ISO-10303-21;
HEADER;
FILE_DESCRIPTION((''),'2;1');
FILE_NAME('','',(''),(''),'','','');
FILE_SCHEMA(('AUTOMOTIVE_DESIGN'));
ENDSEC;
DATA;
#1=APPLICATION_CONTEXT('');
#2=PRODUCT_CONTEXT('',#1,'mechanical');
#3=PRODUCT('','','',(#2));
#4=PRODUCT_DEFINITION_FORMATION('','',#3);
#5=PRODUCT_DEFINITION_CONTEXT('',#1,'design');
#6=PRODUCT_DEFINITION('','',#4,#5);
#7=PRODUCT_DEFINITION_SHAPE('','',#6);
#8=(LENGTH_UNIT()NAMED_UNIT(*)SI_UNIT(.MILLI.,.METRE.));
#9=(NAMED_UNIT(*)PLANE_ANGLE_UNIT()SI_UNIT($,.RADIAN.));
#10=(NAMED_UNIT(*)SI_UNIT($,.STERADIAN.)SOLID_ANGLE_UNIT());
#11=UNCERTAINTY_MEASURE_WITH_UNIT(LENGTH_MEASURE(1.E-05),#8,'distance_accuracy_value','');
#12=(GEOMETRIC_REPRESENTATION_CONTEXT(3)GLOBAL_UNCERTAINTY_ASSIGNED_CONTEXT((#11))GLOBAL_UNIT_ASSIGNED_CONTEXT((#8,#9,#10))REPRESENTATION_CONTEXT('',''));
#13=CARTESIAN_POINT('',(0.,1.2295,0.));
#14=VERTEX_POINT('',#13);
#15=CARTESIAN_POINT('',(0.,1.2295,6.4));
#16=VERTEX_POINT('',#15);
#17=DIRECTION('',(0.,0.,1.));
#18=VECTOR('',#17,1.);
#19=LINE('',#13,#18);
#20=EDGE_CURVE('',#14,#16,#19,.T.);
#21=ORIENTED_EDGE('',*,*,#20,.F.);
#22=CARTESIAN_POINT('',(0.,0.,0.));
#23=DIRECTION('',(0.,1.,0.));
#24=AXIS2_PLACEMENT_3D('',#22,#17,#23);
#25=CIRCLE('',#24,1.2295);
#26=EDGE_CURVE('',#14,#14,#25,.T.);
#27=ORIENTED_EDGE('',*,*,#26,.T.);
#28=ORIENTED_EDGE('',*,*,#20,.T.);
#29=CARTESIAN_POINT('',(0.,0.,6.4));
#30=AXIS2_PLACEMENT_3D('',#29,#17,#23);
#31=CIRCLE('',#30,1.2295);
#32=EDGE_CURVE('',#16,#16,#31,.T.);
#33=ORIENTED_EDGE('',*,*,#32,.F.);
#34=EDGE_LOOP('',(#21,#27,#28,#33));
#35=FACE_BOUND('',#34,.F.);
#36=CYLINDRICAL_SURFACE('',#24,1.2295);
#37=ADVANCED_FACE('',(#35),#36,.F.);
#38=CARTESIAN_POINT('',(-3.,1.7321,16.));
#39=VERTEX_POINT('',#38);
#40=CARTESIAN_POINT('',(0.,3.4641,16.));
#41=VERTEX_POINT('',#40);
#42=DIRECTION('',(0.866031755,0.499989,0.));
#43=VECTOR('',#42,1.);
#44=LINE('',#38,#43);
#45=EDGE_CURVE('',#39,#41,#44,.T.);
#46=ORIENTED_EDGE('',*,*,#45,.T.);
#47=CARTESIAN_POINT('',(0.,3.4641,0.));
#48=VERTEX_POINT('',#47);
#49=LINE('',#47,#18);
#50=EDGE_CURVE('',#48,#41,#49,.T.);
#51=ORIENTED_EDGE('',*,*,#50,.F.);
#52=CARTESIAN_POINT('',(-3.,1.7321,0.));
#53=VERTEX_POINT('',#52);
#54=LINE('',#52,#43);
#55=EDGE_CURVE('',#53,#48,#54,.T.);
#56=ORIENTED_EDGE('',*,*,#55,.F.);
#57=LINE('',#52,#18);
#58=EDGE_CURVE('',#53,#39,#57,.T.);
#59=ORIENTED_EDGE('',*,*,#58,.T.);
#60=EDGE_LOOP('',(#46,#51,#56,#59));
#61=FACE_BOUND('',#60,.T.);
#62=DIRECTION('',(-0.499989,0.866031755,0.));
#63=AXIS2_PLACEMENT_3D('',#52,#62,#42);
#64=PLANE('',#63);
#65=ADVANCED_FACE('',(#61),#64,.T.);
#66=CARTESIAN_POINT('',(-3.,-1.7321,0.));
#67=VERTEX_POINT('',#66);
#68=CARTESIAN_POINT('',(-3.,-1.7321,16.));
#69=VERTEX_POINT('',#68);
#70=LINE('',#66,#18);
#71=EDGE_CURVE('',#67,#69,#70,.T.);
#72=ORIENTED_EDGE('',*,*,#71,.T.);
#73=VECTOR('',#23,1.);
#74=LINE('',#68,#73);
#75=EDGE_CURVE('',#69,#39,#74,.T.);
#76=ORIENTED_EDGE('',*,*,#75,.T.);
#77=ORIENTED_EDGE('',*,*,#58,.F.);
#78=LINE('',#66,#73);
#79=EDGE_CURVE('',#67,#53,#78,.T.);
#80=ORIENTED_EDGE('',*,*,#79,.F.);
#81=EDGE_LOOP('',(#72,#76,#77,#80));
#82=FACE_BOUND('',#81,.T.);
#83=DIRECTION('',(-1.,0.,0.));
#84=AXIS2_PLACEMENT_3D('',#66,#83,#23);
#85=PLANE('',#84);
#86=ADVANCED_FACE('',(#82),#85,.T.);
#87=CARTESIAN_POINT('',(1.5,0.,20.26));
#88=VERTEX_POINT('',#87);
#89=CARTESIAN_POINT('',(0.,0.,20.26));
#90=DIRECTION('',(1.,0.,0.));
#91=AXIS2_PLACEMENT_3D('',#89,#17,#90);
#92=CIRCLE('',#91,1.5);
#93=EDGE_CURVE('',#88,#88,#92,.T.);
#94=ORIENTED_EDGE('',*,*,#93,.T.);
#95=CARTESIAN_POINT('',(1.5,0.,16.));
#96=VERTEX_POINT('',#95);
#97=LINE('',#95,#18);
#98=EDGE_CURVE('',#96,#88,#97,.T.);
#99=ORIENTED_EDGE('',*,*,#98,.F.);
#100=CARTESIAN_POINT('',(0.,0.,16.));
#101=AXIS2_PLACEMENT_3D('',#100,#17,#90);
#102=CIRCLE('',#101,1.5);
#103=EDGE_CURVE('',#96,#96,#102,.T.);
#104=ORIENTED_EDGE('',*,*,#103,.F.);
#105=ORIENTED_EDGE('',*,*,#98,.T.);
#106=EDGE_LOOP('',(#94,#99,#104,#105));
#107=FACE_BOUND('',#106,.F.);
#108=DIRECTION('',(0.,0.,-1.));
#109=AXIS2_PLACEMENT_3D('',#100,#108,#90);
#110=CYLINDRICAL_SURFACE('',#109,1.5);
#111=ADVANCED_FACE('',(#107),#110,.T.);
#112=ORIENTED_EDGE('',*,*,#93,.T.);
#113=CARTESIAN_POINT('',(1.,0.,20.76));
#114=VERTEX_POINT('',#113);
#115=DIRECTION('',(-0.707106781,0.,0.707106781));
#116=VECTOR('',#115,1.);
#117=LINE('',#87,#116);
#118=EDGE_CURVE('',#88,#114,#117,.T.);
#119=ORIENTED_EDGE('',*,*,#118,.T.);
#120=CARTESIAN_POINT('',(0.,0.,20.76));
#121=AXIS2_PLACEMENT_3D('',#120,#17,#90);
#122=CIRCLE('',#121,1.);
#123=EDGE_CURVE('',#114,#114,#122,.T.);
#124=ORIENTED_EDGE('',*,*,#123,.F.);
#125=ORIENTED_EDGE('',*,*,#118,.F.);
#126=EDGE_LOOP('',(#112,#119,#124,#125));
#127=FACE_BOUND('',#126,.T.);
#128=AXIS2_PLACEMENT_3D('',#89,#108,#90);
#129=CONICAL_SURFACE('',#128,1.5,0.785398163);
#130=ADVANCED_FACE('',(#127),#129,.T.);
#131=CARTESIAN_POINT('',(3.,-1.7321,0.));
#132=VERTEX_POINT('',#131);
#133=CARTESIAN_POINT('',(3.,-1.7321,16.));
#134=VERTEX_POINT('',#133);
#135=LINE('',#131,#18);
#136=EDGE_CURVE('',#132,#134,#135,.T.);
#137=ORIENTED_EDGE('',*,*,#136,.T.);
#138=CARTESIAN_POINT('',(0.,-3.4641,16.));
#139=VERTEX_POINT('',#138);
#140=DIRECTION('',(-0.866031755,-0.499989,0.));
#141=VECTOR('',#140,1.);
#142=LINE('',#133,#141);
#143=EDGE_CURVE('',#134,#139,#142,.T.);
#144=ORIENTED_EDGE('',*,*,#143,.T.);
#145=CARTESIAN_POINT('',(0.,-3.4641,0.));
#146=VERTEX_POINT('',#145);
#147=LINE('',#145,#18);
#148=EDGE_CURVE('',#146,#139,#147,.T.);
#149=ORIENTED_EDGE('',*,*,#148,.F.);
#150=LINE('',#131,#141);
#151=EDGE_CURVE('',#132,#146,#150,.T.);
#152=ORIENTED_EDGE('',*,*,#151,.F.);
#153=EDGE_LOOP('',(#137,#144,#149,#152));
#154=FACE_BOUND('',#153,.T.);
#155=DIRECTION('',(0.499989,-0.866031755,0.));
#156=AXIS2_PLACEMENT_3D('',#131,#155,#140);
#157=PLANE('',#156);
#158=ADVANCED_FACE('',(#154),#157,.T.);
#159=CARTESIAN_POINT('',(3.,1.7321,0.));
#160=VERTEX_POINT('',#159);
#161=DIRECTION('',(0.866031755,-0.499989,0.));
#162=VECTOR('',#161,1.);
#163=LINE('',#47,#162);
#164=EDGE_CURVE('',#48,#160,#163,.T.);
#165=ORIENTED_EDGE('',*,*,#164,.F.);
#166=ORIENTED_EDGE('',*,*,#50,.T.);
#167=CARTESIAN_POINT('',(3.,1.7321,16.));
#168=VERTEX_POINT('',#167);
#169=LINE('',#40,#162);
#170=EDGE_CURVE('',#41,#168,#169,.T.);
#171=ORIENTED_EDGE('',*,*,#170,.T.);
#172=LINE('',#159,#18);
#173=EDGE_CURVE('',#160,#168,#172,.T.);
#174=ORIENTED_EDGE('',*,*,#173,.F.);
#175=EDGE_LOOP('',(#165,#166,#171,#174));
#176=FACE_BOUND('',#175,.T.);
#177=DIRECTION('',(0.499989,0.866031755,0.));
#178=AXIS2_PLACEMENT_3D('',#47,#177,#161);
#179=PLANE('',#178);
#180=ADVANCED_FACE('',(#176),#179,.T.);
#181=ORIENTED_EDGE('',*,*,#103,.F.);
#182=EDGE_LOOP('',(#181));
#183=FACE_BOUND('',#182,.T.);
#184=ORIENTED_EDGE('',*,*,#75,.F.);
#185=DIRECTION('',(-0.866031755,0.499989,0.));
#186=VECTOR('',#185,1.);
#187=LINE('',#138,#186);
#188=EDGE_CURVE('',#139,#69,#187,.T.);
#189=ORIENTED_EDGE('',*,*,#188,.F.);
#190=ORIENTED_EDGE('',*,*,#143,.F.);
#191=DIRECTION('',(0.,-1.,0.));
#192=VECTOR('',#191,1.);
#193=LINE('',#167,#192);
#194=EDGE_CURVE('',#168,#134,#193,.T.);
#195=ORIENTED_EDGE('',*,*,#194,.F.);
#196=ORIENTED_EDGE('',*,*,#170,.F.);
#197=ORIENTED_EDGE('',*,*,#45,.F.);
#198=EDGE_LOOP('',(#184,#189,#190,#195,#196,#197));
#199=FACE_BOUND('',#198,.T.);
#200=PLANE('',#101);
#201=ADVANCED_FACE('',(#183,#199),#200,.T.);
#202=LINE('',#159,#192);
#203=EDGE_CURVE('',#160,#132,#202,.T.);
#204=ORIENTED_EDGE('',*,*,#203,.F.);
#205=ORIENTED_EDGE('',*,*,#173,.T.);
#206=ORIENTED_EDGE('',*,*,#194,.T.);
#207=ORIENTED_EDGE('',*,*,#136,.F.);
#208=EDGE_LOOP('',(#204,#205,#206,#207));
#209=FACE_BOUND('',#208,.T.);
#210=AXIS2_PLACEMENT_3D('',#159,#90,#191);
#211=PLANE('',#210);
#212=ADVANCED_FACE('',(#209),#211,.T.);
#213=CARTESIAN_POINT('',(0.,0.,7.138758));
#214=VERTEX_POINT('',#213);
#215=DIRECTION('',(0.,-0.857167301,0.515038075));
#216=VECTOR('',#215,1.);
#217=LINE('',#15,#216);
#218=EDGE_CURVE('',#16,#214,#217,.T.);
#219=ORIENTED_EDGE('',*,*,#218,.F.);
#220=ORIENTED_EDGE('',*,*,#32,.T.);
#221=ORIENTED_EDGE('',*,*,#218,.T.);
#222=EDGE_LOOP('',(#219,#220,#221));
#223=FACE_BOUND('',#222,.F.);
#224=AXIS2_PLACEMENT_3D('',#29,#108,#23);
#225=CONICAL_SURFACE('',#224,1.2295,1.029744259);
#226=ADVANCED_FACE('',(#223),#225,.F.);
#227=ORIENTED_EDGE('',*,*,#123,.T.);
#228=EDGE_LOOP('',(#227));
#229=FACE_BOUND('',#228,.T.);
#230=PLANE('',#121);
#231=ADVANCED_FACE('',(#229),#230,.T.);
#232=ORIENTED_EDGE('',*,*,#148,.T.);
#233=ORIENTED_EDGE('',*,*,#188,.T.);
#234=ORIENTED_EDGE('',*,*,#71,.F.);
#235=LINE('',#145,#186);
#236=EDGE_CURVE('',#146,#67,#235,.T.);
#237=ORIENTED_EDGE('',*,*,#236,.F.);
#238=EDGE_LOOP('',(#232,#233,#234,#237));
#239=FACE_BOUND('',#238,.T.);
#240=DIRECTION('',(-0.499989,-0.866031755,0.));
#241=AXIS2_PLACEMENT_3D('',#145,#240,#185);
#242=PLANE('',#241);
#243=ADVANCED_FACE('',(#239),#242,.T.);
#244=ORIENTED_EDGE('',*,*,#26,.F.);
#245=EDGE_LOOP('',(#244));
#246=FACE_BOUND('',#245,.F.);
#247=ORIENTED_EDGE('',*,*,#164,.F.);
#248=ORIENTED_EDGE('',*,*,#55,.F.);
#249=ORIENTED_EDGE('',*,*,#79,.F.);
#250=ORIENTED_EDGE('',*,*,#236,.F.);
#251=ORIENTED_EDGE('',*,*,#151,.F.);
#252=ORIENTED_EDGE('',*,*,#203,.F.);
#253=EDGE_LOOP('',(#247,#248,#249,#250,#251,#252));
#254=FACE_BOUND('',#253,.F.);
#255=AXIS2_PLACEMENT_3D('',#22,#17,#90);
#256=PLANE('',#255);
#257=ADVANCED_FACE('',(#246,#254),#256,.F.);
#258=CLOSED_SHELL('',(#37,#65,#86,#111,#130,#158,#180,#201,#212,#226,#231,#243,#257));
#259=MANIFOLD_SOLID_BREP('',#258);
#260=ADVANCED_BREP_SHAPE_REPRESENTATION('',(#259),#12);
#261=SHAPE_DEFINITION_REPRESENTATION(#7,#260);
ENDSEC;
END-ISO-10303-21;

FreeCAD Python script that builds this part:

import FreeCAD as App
import Part
import Sketcher

V = App.Vector
Q = App.Units.Quantity


def edges_at(feature, points):
    """Names of the edges that pass closest to the given points."""
    edges = feature.Shape.Edges
    near = lambda p: min(range(len(edges)), key=lambda i: edges[i].distToShape(Part.Vertex(*p))[0])
    return sorted({f"Edge{near(p) + 1}" for p in points})


def add_polygon(sketch, points):
    """Adds a closed chain of lines whose ends are joined by coincident constraints."""
    first, n = sketch.GeometryCount, len(points)
    for a, b in zip(points, points[1:] + points[:1]):
        sketch.addGeometry(Part.LineSegment(App.Vector(*a, 0), App.Vector(*b, 0)), False)
    for i in range(n):
        sketch.addConstraint(Sketcher.Constraint("Coincident", first + i, 2, first + (i + 1) % n, 1))

doc = App.newDocument("Part")
params = doc.addObject("Spreadsheet::Sheet", "Params")
for row, (alias, value) in enumerate([
    ("pad1_length", "16 mm"),
    ("sketch2_diameter", "3 mm"),
    ("pad2_length", "4.76 mm"),
    ("hole_diameter", "2.459 mm"),
    ("hole_depth", "6.4 mm"),
    ("chamfer_size", "0.5 mm"),
], start=1):
    params.set(f"A{row}", alias)
    params.set(f"B{row}", "=" + value)
    params.setAlias(f"B{row}", alias)

body = doc.addObject("PartDesign::Body", "Body")

# Sketch on XY plane
sketch1 = body.newObject("Sketcher::SketchObject", "Sketch")
sketch1.AttachmentSupport = (doc.getObject("XY_Plane"), [""])
sketch1.MapMode = "FlatFace"
add_polygon(sketch1, [(3, 1.7), (0, 3.5), (-3, 1.7), (-3, -1.7), (0, -3.5), (3, -1.7)])  # lines 0-5
sketch1.addConstraint(Sketcher.Constraint("Vertical", 2))
sketch1.addConstraint(Sketcher.Constraint("Vertical", 5))
sketch1.addConstraint(Sketcher.Constraint("Symmetric", 0, 2, 3, 2, -1, 1))
sketch1.addConstraint(Sketcher.Constraint("Symmetric", 1, 2, 4, 2, -1, 1))
sketch1.addConstraint(Sketcher.Constraint("PointOnObject", 0, 2, -2))
sketch1.addConstraint(Sketcher.Constraint("Parallel", 0, 3))
sketch1.addConstraint(Sketcher.Constraint("Horizontal", 2, 2, 4, 2))
sketch1.addConstraint(Sketcher.Constraint("DistanceX", 2, 2, 4, 2, Q("6 mm")))
sketch1.addConstraint(Sketcher.Constraint("Angle", 0, Q("150.0007 deg")))
sketch1.addConstraint(Sketcher.Constraint("DistanceY", 2, 2, 2, 1, Q("3.4642 mm")))
pad1 = body.newObject("PartDesign::Pad", "Pad")
pad1.Profile = sketch1
pad1.setExpression("Length", "Params.pad1_length")

# Sketch on XY plane
sketch2 = body.newObject("Sketcher::SketchObject", "Sketch001")
sketch2.AttachmentSupport = (doc.getObject("XY_Plane"), [""])
sketch2.MapMode = "FlatFace"
sketch2.AttachmentOffset = App.Placement(V(0, 0, 16), App.Rotation())
sketch2.addGeometry(Part.Circle(V(0, 0, 0), V(0, 0, 1), 1.5), False)
sketch2.addConstraint(Sketcher.Constraint("Coincident", 0, 3, -1, 1))
sketch2.addConstraint(Sketcher.Constraint("Diameter", 0, Q("3 mm")))
sketch2.setExpression("Constraints[1]", "Params.sketch2_diameter")
pad2 = body.newObject("PartDesign::Pad", "Pad001")
pad2.Profile = sketch2
pad2.setExpression("Length", "Params.pad2_length")

# Sketch on XY plane
sketch3 = body.newObject("Sketcher::SketchObject", "Sketch002")
sketch3.AttachmentSupport = (doc.getObject("XY_Plane"), [""])
sketch3.MapMode = "FlatFace"
sketch3.addGeometry(Part.Circle(V(0, 0, 0), V(0, 0, 1), 1.2), False)
sketch3.addConstraint(Sketcher.Constraint("Coincident", 0, 3, -1, 1))
sketch3.addConstraint(Sketcher.Constraint("Diameter", 0, Q("2.459 mm")))
doc.recompute()
hole = body.newObject("PartDesign::Hole", "Hole")
hole.Profile = sketch3
hole.ThreadType = "None"
hole.setExpression("Diameter", "Params.hole_diameter")
hole.DepthType = "Dimension"
hole.setExpression("Depth", "Params.hole_depth")
hole.DrillPoint = "Angled"
hole.DrillPointAngle = 118
hole.Reversed = True
doc.recompute()

chamfer = body.newObject("PartDesign::Chamfer", "Chamfer")
chamfer.Base = (hole, edges_at(hole, [(-1.5, 0, 20.76)]))
chamfer.setExpression("Size", "Params.chamfer_size")

doc.recompute()
